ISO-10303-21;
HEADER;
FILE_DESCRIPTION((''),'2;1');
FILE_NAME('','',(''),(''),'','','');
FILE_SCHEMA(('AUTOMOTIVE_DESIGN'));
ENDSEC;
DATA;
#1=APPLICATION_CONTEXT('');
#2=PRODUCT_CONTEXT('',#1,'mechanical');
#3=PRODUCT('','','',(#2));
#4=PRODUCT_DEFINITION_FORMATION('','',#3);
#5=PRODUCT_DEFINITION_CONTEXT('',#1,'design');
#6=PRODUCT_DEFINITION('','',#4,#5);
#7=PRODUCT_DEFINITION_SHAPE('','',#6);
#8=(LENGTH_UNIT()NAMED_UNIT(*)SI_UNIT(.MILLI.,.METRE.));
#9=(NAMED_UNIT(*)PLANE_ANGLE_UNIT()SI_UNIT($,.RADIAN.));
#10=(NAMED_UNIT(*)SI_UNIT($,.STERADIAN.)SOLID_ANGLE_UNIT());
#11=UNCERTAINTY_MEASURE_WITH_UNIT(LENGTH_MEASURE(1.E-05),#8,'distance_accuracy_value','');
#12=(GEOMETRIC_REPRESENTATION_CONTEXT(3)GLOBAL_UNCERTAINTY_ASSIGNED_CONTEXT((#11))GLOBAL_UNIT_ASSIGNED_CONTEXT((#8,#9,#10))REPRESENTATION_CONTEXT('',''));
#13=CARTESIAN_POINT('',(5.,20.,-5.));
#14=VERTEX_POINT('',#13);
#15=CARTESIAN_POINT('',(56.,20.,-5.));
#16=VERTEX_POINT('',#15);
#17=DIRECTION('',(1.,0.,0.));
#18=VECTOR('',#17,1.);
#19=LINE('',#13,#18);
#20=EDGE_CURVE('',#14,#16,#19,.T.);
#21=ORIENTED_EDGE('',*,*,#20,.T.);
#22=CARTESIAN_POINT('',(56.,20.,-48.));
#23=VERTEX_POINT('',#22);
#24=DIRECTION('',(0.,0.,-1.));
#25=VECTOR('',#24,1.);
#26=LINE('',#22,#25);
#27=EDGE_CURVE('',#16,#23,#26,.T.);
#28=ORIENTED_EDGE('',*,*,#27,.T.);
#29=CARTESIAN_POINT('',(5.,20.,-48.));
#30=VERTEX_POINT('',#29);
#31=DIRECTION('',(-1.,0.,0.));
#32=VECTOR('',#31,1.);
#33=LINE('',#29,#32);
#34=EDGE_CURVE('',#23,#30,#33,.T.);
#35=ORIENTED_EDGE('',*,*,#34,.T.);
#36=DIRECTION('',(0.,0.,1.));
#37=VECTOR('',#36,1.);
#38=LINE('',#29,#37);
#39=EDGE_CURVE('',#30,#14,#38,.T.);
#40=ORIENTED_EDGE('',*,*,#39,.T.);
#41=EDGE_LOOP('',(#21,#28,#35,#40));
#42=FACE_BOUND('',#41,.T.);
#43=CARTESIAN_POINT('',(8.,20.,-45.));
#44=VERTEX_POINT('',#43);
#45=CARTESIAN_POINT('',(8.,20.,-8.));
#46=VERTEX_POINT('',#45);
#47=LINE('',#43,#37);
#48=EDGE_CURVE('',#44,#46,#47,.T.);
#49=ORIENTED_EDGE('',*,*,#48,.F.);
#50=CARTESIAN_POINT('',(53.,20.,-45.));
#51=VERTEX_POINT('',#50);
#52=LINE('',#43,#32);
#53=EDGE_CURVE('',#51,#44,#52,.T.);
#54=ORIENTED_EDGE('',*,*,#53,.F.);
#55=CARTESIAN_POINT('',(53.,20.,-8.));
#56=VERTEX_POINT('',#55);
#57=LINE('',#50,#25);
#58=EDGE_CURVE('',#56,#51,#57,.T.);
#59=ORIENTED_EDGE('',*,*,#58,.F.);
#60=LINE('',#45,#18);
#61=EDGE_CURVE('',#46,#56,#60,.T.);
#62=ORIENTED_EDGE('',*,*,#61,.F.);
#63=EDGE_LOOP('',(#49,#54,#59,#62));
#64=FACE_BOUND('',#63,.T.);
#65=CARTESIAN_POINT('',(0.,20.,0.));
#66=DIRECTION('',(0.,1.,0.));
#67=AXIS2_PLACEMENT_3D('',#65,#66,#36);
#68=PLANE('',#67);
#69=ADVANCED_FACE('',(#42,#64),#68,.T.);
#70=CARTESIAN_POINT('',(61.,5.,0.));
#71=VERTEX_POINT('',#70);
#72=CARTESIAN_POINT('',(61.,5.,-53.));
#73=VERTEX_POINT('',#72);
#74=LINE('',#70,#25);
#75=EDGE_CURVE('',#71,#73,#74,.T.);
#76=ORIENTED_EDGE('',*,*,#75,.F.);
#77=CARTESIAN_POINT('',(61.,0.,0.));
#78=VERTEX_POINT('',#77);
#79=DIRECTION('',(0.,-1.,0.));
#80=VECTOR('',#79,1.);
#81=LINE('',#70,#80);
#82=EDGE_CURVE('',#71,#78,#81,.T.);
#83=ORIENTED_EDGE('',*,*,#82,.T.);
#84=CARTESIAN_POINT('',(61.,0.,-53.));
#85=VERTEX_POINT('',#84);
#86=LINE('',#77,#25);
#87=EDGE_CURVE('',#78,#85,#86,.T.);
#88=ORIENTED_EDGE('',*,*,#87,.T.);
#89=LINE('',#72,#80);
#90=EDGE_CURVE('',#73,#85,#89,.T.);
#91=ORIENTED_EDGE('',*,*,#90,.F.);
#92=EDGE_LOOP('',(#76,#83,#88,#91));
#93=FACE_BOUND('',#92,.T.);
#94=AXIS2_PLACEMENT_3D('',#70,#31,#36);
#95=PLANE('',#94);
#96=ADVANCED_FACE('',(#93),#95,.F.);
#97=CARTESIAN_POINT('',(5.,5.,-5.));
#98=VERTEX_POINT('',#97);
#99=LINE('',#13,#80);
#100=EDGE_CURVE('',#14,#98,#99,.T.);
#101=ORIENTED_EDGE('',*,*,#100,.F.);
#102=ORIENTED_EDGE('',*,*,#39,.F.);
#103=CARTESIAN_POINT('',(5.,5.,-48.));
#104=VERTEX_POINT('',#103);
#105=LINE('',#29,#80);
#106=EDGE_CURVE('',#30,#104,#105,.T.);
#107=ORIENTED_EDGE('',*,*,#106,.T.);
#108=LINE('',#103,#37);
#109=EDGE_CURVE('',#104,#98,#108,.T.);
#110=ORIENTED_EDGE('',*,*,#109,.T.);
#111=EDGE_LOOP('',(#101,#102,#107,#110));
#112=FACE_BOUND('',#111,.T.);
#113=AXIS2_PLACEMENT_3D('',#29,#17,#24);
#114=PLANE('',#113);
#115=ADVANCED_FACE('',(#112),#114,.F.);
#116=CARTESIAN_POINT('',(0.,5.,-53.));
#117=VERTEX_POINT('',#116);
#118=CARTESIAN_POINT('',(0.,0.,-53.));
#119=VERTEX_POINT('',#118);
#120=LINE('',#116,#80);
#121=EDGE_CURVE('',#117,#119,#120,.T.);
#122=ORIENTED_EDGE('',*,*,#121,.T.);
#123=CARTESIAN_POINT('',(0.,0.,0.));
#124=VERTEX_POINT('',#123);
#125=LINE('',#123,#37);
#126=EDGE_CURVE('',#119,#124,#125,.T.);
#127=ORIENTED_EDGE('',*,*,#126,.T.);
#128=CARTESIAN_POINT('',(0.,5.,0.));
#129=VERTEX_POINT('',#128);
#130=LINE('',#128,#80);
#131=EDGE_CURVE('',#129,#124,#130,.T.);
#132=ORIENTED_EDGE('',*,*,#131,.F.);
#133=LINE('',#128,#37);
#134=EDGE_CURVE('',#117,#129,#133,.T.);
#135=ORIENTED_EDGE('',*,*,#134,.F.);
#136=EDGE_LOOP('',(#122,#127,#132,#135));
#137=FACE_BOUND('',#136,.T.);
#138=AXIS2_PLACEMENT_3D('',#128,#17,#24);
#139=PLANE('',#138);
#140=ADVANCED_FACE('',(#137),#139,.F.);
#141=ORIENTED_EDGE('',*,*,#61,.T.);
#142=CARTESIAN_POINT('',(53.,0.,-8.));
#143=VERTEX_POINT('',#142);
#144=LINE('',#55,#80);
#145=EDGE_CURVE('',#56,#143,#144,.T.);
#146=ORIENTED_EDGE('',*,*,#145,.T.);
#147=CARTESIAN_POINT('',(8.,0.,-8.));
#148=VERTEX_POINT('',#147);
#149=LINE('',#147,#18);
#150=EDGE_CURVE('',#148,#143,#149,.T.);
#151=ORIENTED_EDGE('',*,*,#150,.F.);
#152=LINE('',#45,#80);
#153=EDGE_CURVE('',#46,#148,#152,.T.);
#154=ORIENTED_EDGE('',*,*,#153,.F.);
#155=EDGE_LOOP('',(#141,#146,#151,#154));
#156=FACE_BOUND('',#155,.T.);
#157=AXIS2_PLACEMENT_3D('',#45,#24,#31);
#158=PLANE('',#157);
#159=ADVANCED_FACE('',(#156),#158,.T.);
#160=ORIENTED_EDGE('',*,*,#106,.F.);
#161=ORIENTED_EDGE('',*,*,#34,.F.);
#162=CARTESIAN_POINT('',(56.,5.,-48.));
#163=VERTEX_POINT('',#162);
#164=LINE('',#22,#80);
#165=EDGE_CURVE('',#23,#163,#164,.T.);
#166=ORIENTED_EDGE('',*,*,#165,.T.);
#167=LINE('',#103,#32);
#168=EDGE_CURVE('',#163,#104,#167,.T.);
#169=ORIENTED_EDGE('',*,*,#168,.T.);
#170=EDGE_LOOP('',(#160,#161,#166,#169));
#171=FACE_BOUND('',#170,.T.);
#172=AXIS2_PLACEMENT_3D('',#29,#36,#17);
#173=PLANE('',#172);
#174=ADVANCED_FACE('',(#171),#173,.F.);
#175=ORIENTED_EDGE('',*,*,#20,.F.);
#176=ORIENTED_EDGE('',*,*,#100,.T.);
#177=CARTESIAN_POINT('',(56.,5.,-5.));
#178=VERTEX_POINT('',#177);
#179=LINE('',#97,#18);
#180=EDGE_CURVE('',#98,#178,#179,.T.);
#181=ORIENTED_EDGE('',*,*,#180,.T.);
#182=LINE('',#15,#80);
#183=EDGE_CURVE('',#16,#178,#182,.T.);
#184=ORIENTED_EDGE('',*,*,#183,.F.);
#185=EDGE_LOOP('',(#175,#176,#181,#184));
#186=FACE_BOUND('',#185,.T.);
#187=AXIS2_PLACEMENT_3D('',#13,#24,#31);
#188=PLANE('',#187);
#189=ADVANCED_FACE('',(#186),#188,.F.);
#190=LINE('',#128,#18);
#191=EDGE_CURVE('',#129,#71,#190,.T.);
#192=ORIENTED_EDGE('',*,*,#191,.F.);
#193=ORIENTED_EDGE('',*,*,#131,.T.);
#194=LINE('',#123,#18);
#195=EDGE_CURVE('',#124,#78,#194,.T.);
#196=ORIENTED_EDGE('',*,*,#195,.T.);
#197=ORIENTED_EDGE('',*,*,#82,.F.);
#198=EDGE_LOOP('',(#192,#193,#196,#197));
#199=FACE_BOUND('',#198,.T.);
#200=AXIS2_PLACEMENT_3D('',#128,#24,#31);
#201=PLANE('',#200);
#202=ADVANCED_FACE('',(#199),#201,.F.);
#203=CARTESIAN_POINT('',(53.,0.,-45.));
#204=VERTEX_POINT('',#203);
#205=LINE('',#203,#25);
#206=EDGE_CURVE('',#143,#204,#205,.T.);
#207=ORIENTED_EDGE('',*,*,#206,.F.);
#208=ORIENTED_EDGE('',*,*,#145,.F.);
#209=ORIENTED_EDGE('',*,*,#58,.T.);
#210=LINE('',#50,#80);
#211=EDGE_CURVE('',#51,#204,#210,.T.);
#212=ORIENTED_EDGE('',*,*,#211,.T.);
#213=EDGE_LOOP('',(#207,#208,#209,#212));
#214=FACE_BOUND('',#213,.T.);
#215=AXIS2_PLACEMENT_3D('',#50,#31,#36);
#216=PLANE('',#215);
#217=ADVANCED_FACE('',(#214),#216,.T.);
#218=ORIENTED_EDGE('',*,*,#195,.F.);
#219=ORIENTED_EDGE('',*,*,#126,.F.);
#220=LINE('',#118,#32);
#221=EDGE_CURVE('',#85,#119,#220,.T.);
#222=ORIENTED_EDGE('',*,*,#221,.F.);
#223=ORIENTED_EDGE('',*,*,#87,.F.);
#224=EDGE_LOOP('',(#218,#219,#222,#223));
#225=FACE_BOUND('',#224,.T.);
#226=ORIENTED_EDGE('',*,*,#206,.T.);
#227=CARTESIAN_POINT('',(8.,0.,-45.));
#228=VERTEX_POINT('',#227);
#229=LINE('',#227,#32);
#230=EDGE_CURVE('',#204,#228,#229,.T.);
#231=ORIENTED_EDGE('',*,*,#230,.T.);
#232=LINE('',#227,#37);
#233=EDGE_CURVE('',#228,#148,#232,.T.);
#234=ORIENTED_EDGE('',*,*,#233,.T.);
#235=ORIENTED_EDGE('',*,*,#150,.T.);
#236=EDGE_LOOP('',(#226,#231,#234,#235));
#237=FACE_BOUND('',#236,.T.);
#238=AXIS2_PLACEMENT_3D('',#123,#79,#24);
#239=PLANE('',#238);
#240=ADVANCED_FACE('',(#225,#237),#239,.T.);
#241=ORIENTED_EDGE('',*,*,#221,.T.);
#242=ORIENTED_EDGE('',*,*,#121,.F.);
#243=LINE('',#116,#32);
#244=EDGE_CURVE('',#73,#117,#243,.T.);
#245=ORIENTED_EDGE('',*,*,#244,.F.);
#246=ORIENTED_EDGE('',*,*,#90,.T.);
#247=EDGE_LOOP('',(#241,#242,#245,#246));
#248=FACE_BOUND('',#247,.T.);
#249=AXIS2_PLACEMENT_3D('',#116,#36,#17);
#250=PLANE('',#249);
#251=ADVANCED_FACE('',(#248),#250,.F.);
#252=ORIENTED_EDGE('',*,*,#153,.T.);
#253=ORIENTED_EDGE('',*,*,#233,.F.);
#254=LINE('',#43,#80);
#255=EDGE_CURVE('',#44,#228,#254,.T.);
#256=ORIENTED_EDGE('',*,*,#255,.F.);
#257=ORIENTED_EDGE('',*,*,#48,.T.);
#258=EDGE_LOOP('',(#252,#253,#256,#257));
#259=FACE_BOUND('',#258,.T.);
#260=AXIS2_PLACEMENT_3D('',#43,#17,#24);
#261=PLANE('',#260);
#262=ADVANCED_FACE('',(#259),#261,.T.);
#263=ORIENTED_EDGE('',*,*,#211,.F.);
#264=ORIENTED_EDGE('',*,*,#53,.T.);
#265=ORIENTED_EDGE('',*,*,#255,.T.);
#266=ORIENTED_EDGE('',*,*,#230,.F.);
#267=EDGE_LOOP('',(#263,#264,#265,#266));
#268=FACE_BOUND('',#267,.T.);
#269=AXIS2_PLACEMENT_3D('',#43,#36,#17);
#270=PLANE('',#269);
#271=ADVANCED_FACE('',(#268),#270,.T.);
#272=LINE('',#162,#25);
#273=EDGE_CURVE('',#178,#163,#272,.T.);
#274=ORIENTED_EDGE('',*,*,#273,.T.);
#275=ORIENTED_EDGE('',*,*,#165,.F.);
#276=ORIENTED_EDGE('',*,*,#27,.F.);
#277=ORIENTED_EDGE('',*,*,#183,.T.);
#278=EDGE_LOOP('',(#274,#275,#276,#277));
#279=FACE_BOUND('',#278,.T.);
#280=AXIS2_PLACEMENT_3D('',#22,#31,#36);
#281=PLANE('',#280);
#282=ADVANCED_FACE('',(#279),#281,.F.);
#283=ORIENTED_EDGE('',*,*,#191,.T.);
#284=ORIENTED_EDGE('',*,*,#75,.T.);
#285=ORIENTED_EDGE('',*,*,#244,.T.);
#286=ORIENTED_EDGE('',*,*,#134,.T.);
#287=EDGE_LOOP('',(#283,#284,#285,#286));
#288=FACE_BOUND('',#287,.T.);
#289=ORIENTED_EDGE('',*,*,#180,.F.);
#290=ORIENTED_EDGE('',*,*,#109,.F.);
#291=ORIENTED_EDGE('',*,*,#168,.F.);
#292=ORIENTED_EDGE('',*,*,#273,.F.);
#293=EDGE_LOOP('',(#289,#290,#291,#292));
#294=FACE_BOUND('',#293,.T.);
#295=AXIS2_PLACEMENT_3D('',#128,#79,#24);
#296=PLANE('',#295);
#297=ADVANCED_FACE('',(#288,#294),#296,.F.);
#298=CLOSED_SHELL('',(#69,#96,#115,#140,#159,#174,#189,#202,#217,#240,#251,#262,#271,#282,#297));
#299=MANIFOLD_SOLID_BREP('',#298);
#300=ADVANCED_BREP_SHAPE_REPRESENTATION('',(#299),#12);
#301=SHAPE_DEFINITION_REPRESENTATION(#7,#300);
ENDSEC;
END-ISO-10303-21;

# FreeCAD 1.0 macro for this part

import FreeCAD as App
import Part
import Sketcher

V = App.Vector
Q = App.Units.Quantity


def add_polygon(sketch, points):
    """Adds a closed chain of lines whose ends are joined by coincident constraints."""
    first, n = sketch.GeometryCount, len(points)
    for a, b in zip(points, points[1:] + points[:1]):
        sketch.addGeometry(Part.LineSegment(App.Vector(*a, 0), App.Vector(*b, 0)), False)
    for i in range(n):
        sketch.addConstraint(Sketcher.Constraint("Coincident", first + i, 2, first + (i + 1) % n, 1))

doc = App.newDocument("Part")
body = doc.addObject("PartDesign::Body", "Body")

sketch1 = body.newObject("Sketcher::SketchObject", "Sketch")
sketch1.AttachmentSupport = (doc.getObject("XZ_Plane"), [""])
sketch1.MapMode = "FlatFace"
add_polygon(sketch1, [(0, -53), (0, 0), (61, 0), (61, -53)])
add_polygon(sketch1, [(56, -5), (5, -5), (5, -48), (56, -48)])
sketch1.addConstraint(Sketcher.Constraint("Vertical", 0))
sketch1.addConstraint(Sketcher.Constraint("Horizontal", 1))
sketch1.addConstraint(Sketcher.Constraint("Vertical", 2))
sketch1.addConstraint(Sketcher.Constraint("Horizontal", 3))
sketch1.addConstraint(Sketcher.Constraint("Horizontal", 4))
sketch1.addConstraint(Sketcher.Constraint("Vertical", 5))
sketch1.addConstraint(Sketcher.Constraint("Horizontal", 6))
sketch1.addConstraint(Sketcher.Constraint("Vertical", 7))
sketch1.addConstraint(Sketcher.Constraint("Coincident", 0, 2, -1, 1))
sketch1.addConstraint(Sketcher.Constraint("DistanceX", 1, 1, 1, 2, Q("61 mm")))
sketch1.addConstraint(Sketcher.Constraint("DistanceX", 4, 2, 4, 1, Q("51 mm")))
sketch1.addConstraint(Sketcher.Constraint("DistanceY", 0, 1, 0, 2, Q("53 mm")))
sketch1.addConstraint(Sketcher.Constraint("DistanceY", 5, 2, 5, 1, Q("43 mm")))
sketch1.addConstraint(Sketcher.Constraint("DistanceX", -1, 1, 4, 2, Q("5 mm")))
sketch1.addConstraint(Sketcher.Constraint("DistanceY", 4, 2, -1, 1, Q("5 mm")))
pad1 = body.newObject("PartDesign::Pad", "Pad")
pad1.Profile = sketch1
pad1.Length = 5
pad1.Reversed = True

sketch2 = body.newObject("Sketcher::SketchObject", "Sketch001")
sketch2.AttachmentSupport = (doc.getObject("XZ_Plane"), [""])
sketch2.MapMode = "FlatFace"
add_polygon(sketch2, [(5, -48), (5, -5), (56, -5), (56, -48)])
add_polygon(sketch2, [(53, -8), (8, -8), (8, -45), (53, -45)])
sketch2.addConstraint(Sketcher.Constraint("Vertical", 0))
sketch2.addConstraint(Sketcher.Constraint("Horizontal", 1))
sketch2.addConstraint(Sketcher.Constraint("Vertical", 2))
sketch2.addConstraint(Sketcher.Constraint("Horizontal", 3))
sketch2.addConstraint(Sketcher.Constraint("Horizontal", 4))
sketch2.addConstraint(Sketcher.Constraint("Vertical", 5))
sketch2.addConstraint(Sketcher.Constraint("Horizontal", 6))
sketch2.addConstraint(Sketcher.Constraint("Vertical", 7))
sketch2.addConstraint(Sketcher.Constraint("DistanceX", 1, 1, 1, 2, Q("51 mm")))
sketch2.addConstraint(Sketcher.Constraint("DistanceX", 4, 2, 4, 1, Q("45 mm")))
sketch2.addConstraint(Sketcher.Constraint("DistanceY", 0, 1, 0, 2, Q("43 mm")))
sketch2.addConstraint(Sketcher.Constraint("DistanceY", 5, 2, 5, 1, Q("37 mm")))
sketch2.addConstraint(Sketcher.Constraint("DistanceX", -1, 1, 0, 2, Q("5 mm")))
sketch2.addConstraint(Sketcher.Constraint("DistanceY", 0, 2, -1, 1, Q("5 mm")))
sketch2.addConstraint(Sketcher.Constraint("DistanceX", -1, 1, 4, 2, Q("8 mm")))
sketch2.addConstraint(Sketcher.Constraint("DistanceY", 4, 2, -1, 1, Q("8 mm")))
pad2 = body.newObject("PartDesign::Pad", "Pad001")
pad2.Profile = sketch2
pad2.Length = 20
pad2.Reversed = True

doc.recompute()
